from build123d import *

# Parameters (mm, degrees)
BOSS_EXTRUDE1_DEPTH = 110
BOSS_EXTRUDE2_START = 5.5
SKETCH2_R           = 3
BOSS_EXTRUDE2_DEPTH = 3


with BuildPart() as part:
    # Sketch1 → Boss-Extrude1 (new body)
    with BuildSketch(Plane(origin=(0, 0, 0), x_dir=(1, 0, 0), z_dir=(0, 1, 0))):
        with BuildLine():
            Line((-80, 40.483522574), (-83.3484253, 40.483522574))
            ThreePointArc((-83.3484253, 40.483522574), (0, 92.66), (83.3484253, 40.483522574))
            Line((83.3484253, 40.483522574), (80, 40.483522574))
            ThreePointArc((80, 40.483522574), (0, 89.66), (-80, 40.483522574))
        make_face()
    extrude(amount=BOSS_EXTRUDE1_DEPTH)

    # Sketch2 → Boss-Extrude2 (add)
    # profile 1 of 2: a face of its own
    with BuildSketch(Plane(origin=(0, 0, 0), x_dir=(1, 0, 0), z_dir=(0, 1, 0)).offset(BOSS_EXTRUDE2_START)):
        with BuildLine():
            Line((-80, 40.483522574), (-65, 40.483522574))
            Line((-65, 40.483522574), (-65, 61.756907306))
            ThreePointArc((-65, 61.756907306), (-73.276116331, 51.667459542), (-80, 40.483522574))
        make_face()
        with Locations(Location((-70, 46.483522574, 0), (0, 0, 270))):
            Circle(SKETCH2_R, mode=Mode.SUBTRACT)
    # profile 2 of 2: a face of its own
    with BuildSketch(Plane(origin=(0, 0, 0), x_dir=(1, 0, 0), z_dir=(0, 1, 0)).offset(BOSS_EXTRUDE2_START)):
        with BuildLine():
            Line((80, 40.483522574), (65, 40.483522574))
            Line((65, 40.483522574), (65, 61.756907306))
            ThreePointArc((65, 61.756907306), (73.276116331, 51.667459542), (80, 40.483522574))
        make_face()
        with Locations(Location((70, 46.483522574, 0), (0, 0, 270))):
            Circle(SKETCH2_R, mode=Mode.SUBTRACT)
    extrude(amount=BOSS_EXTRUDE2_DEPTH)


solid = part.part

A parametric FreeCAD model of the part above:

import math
import FreeCAD as App
import Part
import Sketcher
Q = App.Units.Quantity

doc = App.newDocument("Part")
body = doc.addObject("PartDesign::Body", "Body")

sketch1 = body.newObject("Sketcher::SketchObject", "Sketch")
sketch1.AttachmentSupport = (doc.getObject("XZ_Plane"), [""])
sketch1.MapMode = "FlatFace"
sketch1.addGeometry(Part.LineSegment(App.Vector(-83.348425, -40.483523, 0), App.Vector(-80, -40.483523, 0)), False)
sketch1.addGeometry(Part.ArcOfCircle(Part.Circle(App.Vector(0, 0, 0), App.Vector(0, 0, 1), 89.66), math.radians(-153.158581), math.radians(-26.841419)), False)
sketch1.addGeometry(Part.LineSegment(App.Vector(80, -40.483523, 0), App.Vector(83.348425, -40.483523, 0)), False)
sketch1.addGeometry(Part.ArcOfCircle(Part.Circle(App.Vector(0, 0, 0), App.Vector(0, 0, 1), 92.66), math.radians(-154.093491), math.radians(-25.906509)), False)
sketch1.addConstraint(Sketcher.Constraint("Coincident", 0, 2, 1, 1))
sketch1.addConstraint(Sketcher.Constraint("Coincident", 1, 2, 2, 1))
sketch1.addConstraint(Sketcher.Constraint("Coincident", 2, 2, 3, 2))
sketch1.addConstraint(Sketcher.Constraint("Coincident", 3, 1, 0, 1))
sketch1.addConstraint(Sketcher.Constraint("Horizontal", 0))
sketch1.addConstraint(Sketcher.Constraint("Horizontal", 2))
sketch1.addConstraint(Sketcher.Constraint("Coincident", 1, 3, -1, 1))
sketch1.addConstraint(Sketcher.Constraint("Coincident", 3, 3, -1, 1))
sketch1.addConstraint(Sketcher.Constraint("Horizontal", 0, 2, 1, 2))
sketch1.addConstraint(Sketcher.Constraint("Radius", 1, Q("89.66 mm")))
sketch1.addConstraint(Sketcher.Constraint("Radius", 3, Q("92.66 mm")))
sketch1.addConstraint(Sketcher.Constraint("DistanceX", 0, 2, -1, 1, Q("80 mm")))
pad1 = body.newObject("PartDesign::Pad", "Pad")
pad1.Profile = sketch1
pad1.Length = 110
pad1.Reversed = True

sketch2 = body.newObject("Sketcher::SketchObject", "Sketch001")
sketch2.AttachmentSupport = (doc.getObject("XZ_Plane"), [""])
sketch2.MapMode = "FlatFace"
sketch2.AttachmentOffset = App.Placement(App.Vector(0, 0, -5.5), App.Rotation())
sketch2.addGeometry(Part.LineSegment(App.Vector(-80, -40.483523, 0), App.Vector(-65, -40.483523, 0)), False)
sketch2.addGeometry(Part.LineSegment(App.Vector(-65, -40.483523, 0), App.Vector(-65, -61.756907, 0)), False)
sketch2.addGeometry(Part.ArcOfCircle(Part.Circle(App.Vector(0, 0, 0), App.Vector(0, 0, 1), 89.66), math.radians(-153.158581), math.radians(-136.465601)), False)
sketch2.addGeometry(Part.Circle(App.Vector(-70, -46.483523, 0), App.Vector(0, 0, 1), 3), False)
sketch2.addGeometry(Part.LineSegment(App.Vector(65, -40.483523, 0), App.Vector(80, -40.483523, 0)), False)
sketch2.addGeometry(Part.ArcOfCircle(Part.Circle(App.Vector(0, 0, 0), App.Vector(0, 0, 1), 89.66), math.radians(-43.534399), math.radians(-26.841419)), False)
sketch2.addGeometry(Part.LineSegment(App.Vector(65, -61.756907, 0), App.Vector(65, -40.483523, 0)), False)
sketch2.addGeometry(Part.Circle(App.Vector(70, -46.483523, 0), App.Vector(0, 0, 1), 3), False)
sketch2.addConstraint(Sketcher.Constraint("Coincident", 0, 2, 1, 1))
sketch2.addConstraint(Sketcher.Constraint("Coincident", 1, 2, 2, 2))
sketch2.addConstraint(Sketcher.Constraint("Coincident", 2, 1, 0, 1))
sketch2.addConstraint(Sketcher.Constraint("Coincident", 4, 2, 5, 2))
sketch2.addConstraint(Sketcher.Constraint("Coincident", 5, 1, 6, 1))
sketch2.addConstraint(Sketcher.Constraint("Coincident", 6, 2, 4, 1))
sketch2.addConstraint(Sketcher.Constraint("Horizontal", 0))
sketch2.addConstraint(Sketcher.Constraint("Vertical", 1))
sketch2.addConstraint(Sketcher.Constraint("Horizontal", 4))
sketch2.addConstraint(Sketcher.Constraint("Vertical", 6))
sketch2.addConstraint(Sketcher.Constraint("Coincident", 2, 3, -1, 1))
sketch2.addConstraint(Sketcher.Constraint("Coincident", 5, 3, -1, 1))
sketch2.addConstraint(Sketcher.Constraint("Equal", 2, 5))
sketch2.addConstraint(Sketcher.Constraint("Equal", 3, 7))
sketch2.addConstraint(Sketcher.Constraint("Symmetric", 3, 3, 7, 3, -2))
sketch2.addConstraint(Sketcher.Constraint("Symmetric", 0, 2, 6, 2, -2))
sketch2.addConstraint(Sketcher.Constraint("Diameter", 3, Q("6 mm")))
sketch2.addConstraint(Sketcher.Constraint("DistanceX", 0, 1, 0, 2, Q("15 mm")))
sketch2.addConstraint(Sketcher.Constraint("Radius", 2, Q("89.66 mm")))
sketch2.addConstraint(Sketcher.Constraint("DistanceX", 3, 3, -1, 1, Q("70 mm")))
sketch2.addConstraint(Sketcher.Constraint("DistanceX", 0, 2, -1, 1, Q("65 mm")))
sketch2.addConstraint(Sketcher.Constraint("DistanceY", 3, 3, 0, 2, Q("6 mm")))
pad2 = body.newObject("PartDesign::Pad", "Pad001")
pad2.Profile = sketch2
pad2.Length = 3
pad2.Reversed = True

doc.recompute()
